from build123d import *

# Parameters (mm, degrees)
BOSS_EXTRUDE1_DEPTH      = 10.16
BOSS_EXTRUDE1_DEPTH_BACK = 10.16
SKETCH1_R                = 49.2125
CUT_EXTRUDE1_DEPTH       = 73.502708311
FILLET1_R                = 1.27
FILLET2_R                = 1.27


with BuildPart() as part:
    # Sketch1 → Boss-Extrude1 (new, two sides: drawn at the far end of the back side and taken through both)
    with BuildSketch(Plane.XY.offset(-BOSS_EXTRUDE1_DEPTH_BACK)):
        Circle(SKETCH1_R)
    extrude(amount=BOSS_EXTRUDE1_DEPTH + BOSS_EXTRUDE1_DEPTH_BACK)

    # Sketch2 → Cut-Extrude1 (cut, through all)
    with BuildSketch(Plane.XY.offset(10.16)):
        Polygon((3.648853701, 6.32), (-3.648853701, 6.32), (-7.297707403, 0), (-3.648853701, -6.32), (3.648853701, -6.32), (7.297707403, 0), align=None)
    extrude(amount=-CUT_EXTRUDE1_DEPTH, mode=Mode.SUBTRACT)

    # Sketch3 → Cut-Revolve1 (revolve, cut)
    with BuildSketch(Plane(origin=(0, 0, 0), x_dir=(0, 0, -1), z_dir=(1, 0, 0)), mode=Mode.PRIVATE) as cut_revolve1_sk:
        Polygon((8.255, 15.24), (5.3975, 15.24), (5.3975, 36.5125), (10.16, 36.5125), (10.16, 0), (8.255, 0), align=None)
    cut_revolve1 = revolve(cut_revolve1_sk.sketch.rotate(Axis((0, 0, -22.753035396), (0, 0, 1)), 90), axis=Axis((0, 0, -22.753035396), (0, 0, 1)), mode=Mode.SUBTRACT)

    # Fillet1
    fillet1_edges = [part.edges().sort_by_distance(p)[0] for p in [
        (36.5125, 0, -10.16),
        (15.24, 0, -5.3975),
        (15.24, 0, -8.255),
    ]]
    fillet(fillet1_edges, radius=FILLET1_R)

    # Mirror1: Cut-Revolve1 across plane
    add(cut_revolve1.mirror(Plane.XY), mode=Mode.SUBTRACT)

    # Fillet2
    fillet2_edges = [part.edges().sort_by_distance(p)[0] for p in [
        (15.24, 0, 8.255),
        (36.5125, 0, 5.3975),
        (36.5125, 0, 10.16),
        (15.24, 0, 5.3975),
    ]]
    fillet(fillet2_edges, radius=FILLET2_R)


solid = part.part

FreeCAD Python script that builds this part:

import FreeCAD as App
import Part
import Sketcher
Q = App.Units.Quantity


def edges_at(feature, points):
    """Names of the edges that pass closest to the given points."""
    edges = feature.Shape.Edges
    near = lambda p: min(range(len(edges)), key=lambda i: edges[i].distToShape(Part.Vertex(*p))[0])
    return sorted({f"Edge{near(p) + 1}" for p in points})

doc = App.newDocument("Part")
body = doc.addObject("PartDesign::Body", "Body")

sketch1 = body.newObject("Sketcher::SketchObject", "Sketch")
sketch1.AttachmentSupport = (doc.getObject("XY_Plane"), [""])
sketch1.MapMode = "FlatFace"
sketch1.addGeometry(Part.Circle(App.Vector(0, 0, 0), App.Vector(0, 0, 1), 49), False)
sketch1.addConstraint([
    Sketcher.Constraint("Coincident", 0, 3, -1, 1),
    Sketcher.Constraint("Diameter", 0, Q("3.875 in")),
])
pad1 = body.newObject("PartDesign::Pad", "Pad")
pad1.Profile = sketch1
pad1.Type = "TwoLengths"
pad1.Length = Q("0.4 in")
pad1.Length2 = Q("0.4 in")

sketch2 = body.newObject("Sketcher::SketchObject", "Sketch001")
sketch2.AttachmentSupport = (doc.getObject("XY_Plane"), [""])
sketch2.MapMode = "FlatFace"
sketch2.AttachmentOffset = App.Placement(App.Vector(0, 0, 0.4 * 25.4), App.Rotation())
sketch2.addGeometry([
    Part.LineSegment(App.Vector(4, 6, 0), App.Vector(-4, 6, 0)),
    Part.LineSegment(App.Vector(-4, 6, 0), App.Vector(-7, 0, 0)),
    Part.LineSegment(App.Vector(-7, 0, 0), App.Vector(-4, -6, 0)),
    Part.LineSegment(App.Vector(-4, -6, 0), App.Vector(4, -6, 0)),
    Part.LineSegment(App.Vector(4, -6, 0), App.Vector(7, 0, 0)),
    Part.LineSegment(App.Vector(7, 0, 0), App.Vector(4, 6, 0)),
], False)
sketch2.addConstraint([
    Sketcher.Constraint("Coincident", 0, 2, 1, 1),
    Sketcher.Constraint("Coincident", 1, 2, 2, 1),
    Sketcher.Constraint("Coincident", 2, 2, 3, 1),
    Sketcher.Constraint("Coincident", 3, 2, 4, 1),
    Sketcher.Constraint("Coincident", 4, 2, 5, 1),
    Sketcher.Constraint("Coincident", 5, 2, 0, 1),
    Sketcher.Constraint("Horizontal", 0),
    Sketcher.Constraint("Horizontal", 3),
    Sketcher.Constraint("Symmetric", 0, 2, 3, 2, -1, 1),
    Sketcher.Constraint("Symmetric", 1, 2, 4, 2, -1, 1),
    Sketcher.Constraint("PointOnObject", 1, 2, -1),
    Sketcher.Constraint("Parallel", 2, 5),
    Sketcher.Constraint("Vertical", 0, 2, 2, 2),
    Sketcher.Constraint("Angle", 1, Q("-120 deg")),
    Sketcher.Constraint("DistanceY", -1, 1, 0, 2, 6.32),
    Sketcher.Constraint("DistanceX", 0, 2, 0, 1, 7.297707),
])
pocket1 = body.newObject("PartDesign::Pocket", "Pocket")
pocket1.Profile = sketch2
pocket1.Type = "ThroughAll"

sketch3 = body.newObject("Sketcher::SketchObject", "Sketch002")
sketch3.AttachmentSupport = (doc.getObject("YZ_Plane"), [""])
sketch3.MapMode = "FlatFace"
sketch3.addGeometry([
    Part.LineSegment(App.Vector(15.2, -5.4, 0), App.Vector(15.2, -8.3, 0)),
    Part.LineSegment(App.Vector(15.2, -8.3, 0), App.Vector(0, -8.3, 0)),
    Part.LineSegment(App.Vector(0, -8.3, 0), App.Vector(0, -10.2, 0)),
    Part.LineSegment(App.Vector(0, -10.2, 0), App.Vector(36.5, -10.2, 0)),
    Part.LineSegment(App.Vector(36.5, -10.2, 0), App.Vector(36.5, -5.4, 0)),
    Part.LineSegment(App.Vector(36.5, -5.4, 0), App.Vector(15.2, -5.4, 0)),
], False)
sketch3.addConstraint([
    Sketcher.Constraint("Coincident", 0, 2, 1, 1),
    Sketcher.Constraint("Coincident", 1, 2, 2, 1),
    Sketcher.Constraint("Coincident", 2, 2, 3, 1),
    Sketcher.Constraint("Coincident", 3, 2, 4, 1),
    Sketcher.Constraint("Coincident", 4, 2, 5, 1),
    Sketcher.Constraint("Coincident", 5, 2, 0, 1),
    Sketcher.Constraint("Vertical", 0),
    Sketcher.Constraint("Horizontal", 1),
    Sketcher.Constraint("Vertical", 2),
    Sketcher.Constraint("Horizontal", 3),
    Sketcher.Constraint("Vertical", 4),
    Sketcher.Constraint("Horizontal", 5),
    Sketcher.Constraint("PointOnObject", 1, 2, -2),
    Sketcher.Constraint("DistanceX", 1, 2, 1, 1, Q("0.6 in")),
    Sketcher.Constraint("DistanceY", 2, 2, -1, 1, Q("0.4 in")),
    Sketcher.Constraint("DistanceX", 3, 1, 3, 2, Q("1.4375 in")),
    Sketcher.Constraint("DistanceY", 2, 2, 2, 1, Q("0.075 in")),
    Sketcher.Constraint("DistanceY", 4, 1, 4, 2, Q("0.1875 in")),
])
groove = body.newObject("PartDesign::Groove", "Groove")
groove.Profile = sketch3
groove.ReferenceAxis = (sketch3, ["V_Axis"])
groove.Angle = 360
doc.recompute()

fillet = body.newObject("PartDesign::Fillet", "Fillet")
fillet.Base = (groove, edges_at(groove, [(36.513, 0, -10.16), (15.24, 0, -5.397), (15.24, 0, -8.255)]))
fillet.Radius = Q("0.05 in")
doc.recompute()

mirrored = body.newObject("PartDesign::Mirrored", "Mirrored")
mirrored.Originals = [groove]
mirrored.MirrorPlane = (doc.getObject("XY_Plane"), [""])
body.Tip = mirrored
doc.recompute()

fillet2 = body.newObject("PartDesign::Fillet", "Fillet001")
fillet2.Base = (mirrored, edges_at(mirrored, [
    (15.24, 0, 8.255),
    (36.513, 0, 5.397),
    (36.513, 0, 10.16),
    (15.24, 0, 5.397),
]))
fillet2.Radius = Q("0.05 in")

doc.recompute()
